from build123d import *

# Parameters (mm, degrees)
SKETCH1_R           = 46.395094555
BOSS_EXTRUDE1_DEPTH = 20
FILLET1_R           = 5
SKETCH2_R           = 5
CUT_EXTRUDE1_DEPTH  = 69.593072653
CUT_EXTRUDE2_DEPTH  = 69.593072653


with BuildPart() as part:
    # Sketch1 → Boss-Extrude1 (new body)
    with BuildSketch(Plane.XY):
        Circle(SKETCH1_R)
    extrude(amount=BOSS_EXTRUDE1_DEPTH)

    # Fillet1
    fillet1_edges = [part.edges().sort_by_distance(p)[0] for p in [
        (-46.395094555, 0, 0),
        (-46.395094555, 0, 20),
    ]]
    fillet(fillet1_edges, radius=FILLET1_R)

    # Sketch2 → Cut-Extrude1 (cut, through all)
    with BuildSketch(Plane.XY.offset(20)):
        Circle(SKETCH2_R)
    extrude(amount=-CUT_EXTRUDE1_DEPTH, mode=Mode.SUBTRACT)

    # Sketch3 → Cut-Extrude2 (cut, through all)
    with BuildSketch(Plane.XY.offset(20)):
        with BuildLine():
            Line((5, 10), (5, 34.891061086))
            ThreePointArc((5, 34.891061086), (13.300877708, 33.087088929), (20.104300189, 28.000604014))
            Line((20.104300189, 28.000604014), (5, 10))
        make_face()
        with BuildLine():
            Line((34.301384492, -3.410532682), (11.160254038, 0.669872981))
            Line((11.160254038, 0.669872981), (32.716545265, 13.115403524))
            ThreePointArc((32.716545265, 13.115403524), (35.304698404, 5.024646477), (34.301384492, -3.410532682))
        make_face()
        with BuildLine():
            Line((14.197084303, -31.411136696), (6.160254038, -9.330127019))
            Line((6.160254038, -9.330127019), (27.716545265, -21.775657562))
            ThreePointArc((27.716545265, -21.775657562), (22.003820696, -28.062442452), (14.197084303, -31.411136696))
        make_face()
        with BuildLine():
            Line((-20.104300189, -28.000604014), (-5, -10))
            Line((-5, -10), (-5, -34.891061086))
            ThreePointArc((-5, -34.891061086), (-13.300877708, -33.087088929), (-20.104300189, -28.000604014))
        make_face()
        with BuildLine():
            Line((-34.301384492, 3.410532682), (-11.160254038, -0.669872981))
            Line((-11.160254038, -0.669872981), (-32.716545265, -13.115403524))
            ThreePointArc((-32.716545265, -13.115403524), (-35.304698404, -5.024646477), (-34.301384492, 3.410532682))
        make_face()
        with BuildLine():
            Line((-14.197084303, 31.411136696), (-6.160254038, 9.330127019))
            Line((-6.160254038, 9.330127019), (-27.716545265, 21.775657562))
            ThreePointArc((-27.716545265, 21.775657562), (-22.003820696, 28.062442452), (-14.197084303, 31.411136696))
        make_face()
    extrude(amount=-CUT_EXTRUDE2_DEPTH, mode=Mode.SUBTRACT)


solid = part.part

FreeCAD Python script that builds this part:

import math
import FreeCAD as App
import Part
import Sketcher

V = App.Vector
Q = App.Units.Quantity


def edges_at(feature, points):
    """Names of the edges that pass closest to the given points."""
    edges = feature.Shape.Edges
    near = lambda p: min(range(len(edges)), key=lambda i: edges[i].distToShape(Part.Vertex(*p))[0])
    return sorted({f"Edge{near(p) + 1}" for p in points})

doc = App.newDocument("Part")
body = doc.addObject("PartDesign::Body", "Body")

# Sketch on XY plane
sketch1 = body.newObject("Sketcher::SketchObject", "Sketch")
sketch1.AttachmentSupport = (doc.getObject("XY_Plane"), [""])
sketch1.MapMode = "FlatFace"
sketch1.addGeometry(Part.Circle(V(0, 0, 0), V(0, 0, 1), 46.395095), False)
sketch1.addConstraint(Sketcher.Constraint("Coincident", 0, 3, -1, 1))
sketch1.addConstraint(Sketcher.Constraint("Diameter", 0, Q("92.790189 mm")))
pad1 = body.newObject("PartDesign::Pad", "Pad")
pad1.Profile = sketch1
pad1.Length = 20
doc.recompute()

fillet = body.newObject("PartDesign::Fillet", "Fillet")
fillet.Base = (pad1, edges_at(pad1, [(-46.395, 0, 0), (-46.395, 0, 20)]))
fillet.Radius = 5

# Sketch on XY plane
sketch2 = body.newObject("Sketcher::SketchObject", "Sketch001")
sketch2.AttachmentSupport = (doc.getObject("XY_Plane"), [""])
sketch2.MapMode = "FlatFace"
sketch2.AttachmentOffset = App.Placement(V(0, 0, 20), App.Rotation())
sketch2.addGeometry(Part.Circle(V(0, 0, 0), V(0, 0, 1), 5), False)
sketch2.addConstraint(Sketcher.Constraint("Coincident", 0, 3, -1, 1))
sketch2.addConstraint(Sketcher.Constraint("Diameter", 0, Q("10 mm")))
pocket1 = body.newObject("PartDesign::Pocket", "Pocket")
pocket1.Profile = sketch2
pocket1.Type = "ThroughAll"

# Sketch on XY plane
sketch3 = body.newObject("Sketcher::SketchObject", "Sketch002")
sketch3.AttachmentSupport = (doc.getObject("XY_Plane"), [""])
sketch3.MapMode = "FlatFace"
sketch3.AttachmentOffset = App.Placement(V(0, 0, 20), App.Rotation())
sketch3.addGeometry(Part.LineSegment(V(5, 34.891061, 0), V(5, 10, 0)), False)
sketch3.addGeometry(Part.LineSegment(V(5, 10, 0), V(20.1043, 28.000604, 0)), False)
sketch3.addGeometry(Part.ArcOfCircle(Part.Circle(V(5, 14.891061, 0), V(0, 0, 1), 20), math.radians(40.95584), math.radians(90)), False)
sketch3.addGeometry(Part.LineSegment(V(11.160254, 0.669873, 0), V(34.301384, -3.410533, 0)), False)
sketch3.addGeometry(Part.ArcOfCircle(Part.Circle(V(15.396037, 3.115404, 0), V(0, 0, 1), 20), math.radians(-19.04416), math.radians(30)), False)
sketch3.addGeometry(Part.LineSegment(V(32.716545, 13.115404, 0), V(11.160254, 0.669873, 0)), False)
sketch3.addGeometry(Part.LineSegment(V(6.160254, -9.330127, 0), V(14.197084, -31.411137, 0)), False)
sketch3.addGeometry(Part.ArcOfCircle(Part.Circle(V(10.396037, -11.775658, 0), V(0, 0, 1), 20), math.radians(-79.04416), math.radians(-30)), False)
sketch3.addGeometry(Part.LineSegment(V(27.716545, -21.775658, 0), V(6.160254, -9.330127, 0)), False)
sketch3.addGeometry(Part.LineSegment(V(-5, -10, 0), V(-20.1043, -28.000604, 0)), False)
sketch3.addGeometry(Part.ArcOfCircle(Part.Circle(V(-5, -14.891061, 0), V(0, 0, 1), 20), math.radians(-139.04416), math.radians(-90)), False)
sketch3.addGeometry(Part.LineSegment(V(-5, -34.891061, 0), V(-5, -10, 0)), False)
sketch3.addGeometry(Part.LineSegment(V(-11.160254, -0.669873, 0), V(-34.301384, 3.410533, 0)), False)
sketch3.addGeometry(Part.ArcOfCircle(Part.Circle(V(-15.396037, -3.115404, 0), V(0, 0, 1), 20), math.radians(160.95584), math.radians(210)), False)
sketch3.addGeometry(Part.LineSegment(V(-32.716545, -13.115404, 0), V(-11.160254, -0.669873, 0)), False)
sketch3.addGeometry(Part.LineSegment(V(-6.160254, 9.330127, 0), V(-14.197084, 31.411137, 0)), False)
sketch3.addGeometry(Part.ArcOfCircle(Part.Circle(V(-10.396037, 11.775658, 0), V(0, 0, 1), 20), math.radians(100.95584), math.radians(150)), False)
sketch3.addGeometry(Part.LineSegment(V(-27.716545, 21.775658, 0), V(-6.160254, 9.330127, 0)), False)
sketch3.addConstraint(Sketcher.Constraint("Coincident", 0, 2, 1, 1))
sketch3.addConstraint(Sketcher.Constraint("Coincident", 1, 2, 2, 1))
sketch3.addConstraint(Sketcher.Constraint("Coincident", 2, 2, 0, 1))
sketch3.addConstraint(Sketcher.Constraint("Coincident", 3, 2, 4, 1))
sketch3.addConstraint(Sketcher.Constraint("Coincident", 4, 2, 5, 1))
sketch3.addConstraint(Sketcher.Constraint("Coincident", 5, 2, 3, 1))
sketch3.addConstraint(Sketcher.Constraint("Coincident", 6, 2, 7, 1))
sketch3.addConstraint(Sketcher.Constraint("Coincident", 7, 2, 8, 1))
sketch3.addConstraint(Sketcher.Constraint("Coincident", 8, 2, 6, 1))
sketch3.addConstraint(Sketcher.Constraint("Coincident", 9, 2, 10, 1))
sketch3.addConstraint(Sketcher.Constraint("Coincident", 10, 2, 11, 1))
sketch3.addConstraint(Sketcher.Constraint("Coincident", 11, 2, 9, 1))
sketch3.addConstraint(Sketcher.Constraint("Coincident", 12, 2, 13, 1))
sketch3.addConstraint(Sketcher.Constraint("Coincident", 13, 2, 14, 1))
sketch3.addConstraint(Sketcher.Constraint("Coincident", 14, 2, 12, 1))
sketch3.addConstraint(Sketcher.Constraint("Coincident", 15, 2, 16, 1))
sketch3.addConstraint(Sketcher.Constraint("Coincident", 16, 2, 17, 1))
sketch3.addConstraint(Sketcher.Constraint("Coincident", 17, 2, 15, 1))
sketch3.addConstraint(Sketcher.Constraint("Vertical", 0))
sketch3.addConstraint(Sketcher.Constraint("Vertical", 11))
sketch3.addConstraint(Sketcher.Constraint("Equal", 2, 4))
sketch3.addConstraint(Sketcher.Constraint("Equal", 4, 7))
sketch3.addConstraint(Sketcher.Constraint("Equal", 7, 10))
sketch3.addConstraint(Sketcher.Constraint("Equal", 10, 13))
sketch3.addConstraint(Sketcher.Constraint("Equal", 13, 16))
sketch3.addConstraint(Sketcher.Constraint("Symmetric", 2, 3, 10, 3, -1, 1))
sketch3.addConstraint(Sketcher.Constraint("Symmetric", 4, 3, 13, 3, -1, 1))
sketch3.addConstraint(Sketcher.Constraint("Symmetric", 7, 3, 16, 3, -1, 1))
sketch3.addConstraint(Sketcher.Constraint("Symmetric", 0, 2, 11, 2, -1, 1))
sketch3.addConstraint(Sketcher.Constraint("Symmetric", 5, 2, 14, 2, -1, 1))
sketch3.addConstraint(Sketcher.Constraint("Symmetric", 8, 2, 17, 2, -1, 1))
sketch3.addConstraint(Sketcher.Constraint("Parallel", 1, 9))
sketch3.addConstraint(Sketcher.Constraint("Parallel", 3, 12))
sketch3.addConstraint(Sketcher.Constraint("Parallel", 5, 14))
sketch3.addConstraint(Sketcher.Constraint("Parallel", 6, 15))
sketch3.addConstraint(Sketcher.Constraint("Parallel", 8, 17))
sketch3.addConstraint(Sketcher.Constraint("Vertical", 2, 3, 0, 2))
sketch3.addConstraint(Sketcher.Constraint("Equal", 1, 3))
sketch3.addConstraint(Sketcher.Constraint("Equal", 3, 6))
sketch3.addConstraint(Sketcher.Constraint("Equal", 5, 8))
sketch3.addConstraint(Sketcher.Constraint("Radius", 2, Q("20 mm")))
sketch3.addConstraint(Sketcher.Constraint("Angle", 1, Q("50 deg")))
sketch3.addConstraint(Sketcher.Constraint("Angle", 3, Q("-10 deg")))
sketch3.addConstraint(Sketcher.Constraint("Angle", 5, Q("-150 deg")))
sketch3.addConstraint(Sketcher.Constraint("Angle", 6, Q("-70 deg")))
sketch3.addConstraint(Sketcher.Constraint("Angle", 8, Q("150 deg")))
sketch3.addConstraint(Sketcher.Constraint("DistanceX", -1, 1, 2, 3, Q("5 mm")))
sketch3.addConstraint(Sketcher.Constraint("DistanceY", -1, 1, 0, 2, Q("10 mm")))
sketch3.addConstraint(Sketcher.Constraint("DistanceX", 7, 3, 4, 3, Q("5 mm")))
sketch3.addConstraint(Sketcher.Constraint("DistanceY", 4, 3, 4, 2, Q("10 mm")))
sketch3.addConstraint(Sketcher.Constraint("DistanceY", 8, 2, 5, 2, Q("10 mm")))
sketch3.addConstraint(Sketcher.Constraint("DistanceY", 0, 2, 0, 1, Q("24.891061 mm")))
sketch3.addConstraint(Sketcher.Constraint("DistanceY", 4, 3, 1, 2, Q("24.8852 mm")))
sketch3.addConstraint(Sketcher.Constraint("DistanceX", -1, 1, 4, 3, Q("15.396037 mm")))
pocket2 = body.newObject("PartDesign::Pocket", "Pocket001")
pocket2.Profile = sketch3
pocket2.Type = "ThroughAll"

doc.recompute()
